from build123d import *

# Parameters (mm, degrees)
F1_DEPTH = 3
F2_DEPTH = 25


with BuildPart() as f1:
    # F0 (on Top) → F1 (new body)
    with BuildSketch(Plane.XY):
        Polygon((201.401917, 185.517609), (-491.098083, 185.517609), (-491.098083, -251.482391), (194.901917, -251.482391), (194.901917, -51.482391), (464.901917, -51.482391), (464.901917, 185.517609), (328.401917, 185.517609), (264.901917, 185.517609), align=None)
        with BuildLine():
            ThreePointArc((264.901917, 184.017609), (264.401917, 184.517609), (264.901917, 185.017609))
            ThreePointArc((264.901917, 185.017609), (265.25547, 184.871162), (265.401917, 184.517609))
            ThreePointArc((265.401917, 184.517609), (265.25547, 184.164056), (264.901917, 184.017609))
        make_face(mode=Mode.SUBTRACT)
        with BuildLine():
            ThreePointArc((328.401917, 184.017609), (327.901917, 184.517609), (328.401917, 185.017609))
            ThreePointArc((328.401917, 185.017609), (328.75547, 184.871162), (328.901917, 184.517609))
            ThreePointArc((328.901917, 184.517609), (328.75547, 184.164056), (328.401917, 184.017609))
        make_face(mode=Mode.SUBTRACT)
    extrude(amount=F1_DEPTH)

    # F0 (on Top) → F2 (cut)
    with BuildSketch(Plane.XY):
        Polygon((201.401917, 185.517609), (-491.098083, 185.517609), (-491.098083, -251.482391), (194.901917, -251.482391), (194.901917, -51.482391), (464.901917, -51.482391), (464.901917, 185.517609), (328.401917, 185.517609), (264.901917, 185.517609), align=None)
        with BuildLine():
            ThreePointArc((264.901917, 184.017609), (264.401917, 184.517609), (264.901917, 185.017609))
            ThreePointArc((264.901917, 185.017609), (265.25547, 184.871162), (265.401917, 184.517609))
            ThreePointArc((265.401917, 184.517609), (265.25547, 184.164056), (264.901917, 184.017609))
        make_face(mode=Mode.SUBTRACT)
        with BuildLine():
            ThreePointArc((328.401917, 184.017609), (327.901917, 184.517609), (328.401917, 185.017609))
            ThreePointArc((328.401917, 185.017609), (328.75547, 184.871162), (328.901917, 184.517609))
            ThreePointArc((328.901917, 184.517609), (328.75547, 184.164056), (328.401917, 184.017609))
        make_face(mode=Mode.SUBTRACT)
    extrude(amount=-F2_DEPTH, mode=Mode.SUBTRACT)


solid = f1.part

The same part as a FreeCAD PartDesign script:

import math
import FreeCAD as App
import Part
import Sketcher
Q = App.Units.Quantity


def add_polygon(sketch, points):
    """Adds a closed chain of lines whose ends are joined by coincident constraints."""
    first, n = sketch.GeometryCount, len(points)
    for a, b in zip(points, points[1:] + points[:1]):
        sketch.addGeometry(Part.LineSegment(App.Vector(*a, 0), App.Vector(*b, 0)), False)
    for i in range(n):
        sketch.addConstraint(Sketcher.Constraint("Coincident", first + i, 2, first + (i + 1) % n, 1))

doc = App.newDocument("Part")
params = doc.addObject("Spreadsheet::Sheet", "Params")
for row, (alias, value) in enumerate([
    ("sketch1_radius", "0.500001 mm"),
    ("sketch1_width", "686 mm"),
    ("sketch1_width2", "270 mm"),
    ("sketch1_height", "437 mm"),
    ("sketch1_height2", "200 mm"),
    ("pad1_length", "3 mm"),
    ("sketch2_radius", "0.500001 mm"),
    ("sketch2_width", "686 mm"),
    ("sketch2_width2", "270 mm"),
    ("sketch2_height", "437 mm"),
    ("sketch2_height2", "200 mm"),
    ("pocket1_length", "25 mm"),
], start=1):
    params.set(f"A{row}", alias)
    params.set(f"B{row}", "=" + value)
    params.setAlias(f"B{row}", alias)

body = doc.addObject("PartDesign::Body", "Body")

# Sketch on XY plane
sketch1 = body.newObject("Sketcher::SketchObject", "Sketch")
sketch1.AttachmentSupport = (doc.getObject("XY_Plane"), [""])
sketch1.MapMode = "FlatFace"
add_polygon(sketch1, [(-491.1, 185.5), (-491.1, -251.5), (194.9, -251.5), (194.9, -51.5), (464.9, -51.5), (464.9, 185.5)])  # lines 0-5
sketch1.addGeometry(Part.ArcOfCircle(Part.Circle(App.Vector(264.9, 184.5, 0), App.Vector(0, 0, 1), 0.5), math.radians(-90), math.radians(0)), False)  # 6
sketch1.addGeometry(Part.ArcOfCircle(Part.Circle(App.Vector(264.9, 184.5, 0), App.Vector(0, 0, 1), 0.5), math.radians(90), math.radians(270)), False)  # 7
sketch1.addGeometry(Part.ArcOfCircle(Part.Circle(App.Vector(264.9, 184.5, 0), App.Vector(0, 0, 1), 0.5), math.radians(0), math.radians(90)), False)  # 8
sketch1.addGeometry(Part.ArcOfCircle(Part.Circle(App.Vector(328.4, 184.5, 0), App.Vector(0, 0, 1), 0.5), math.radians(-90), math.radians(0)), False)  # 9
sketch1.addGeometry(Part.ArcOfCircle(Part.Circle(App.Vector(328.4, 184.5, 0), App.Vector(0, 0, 1), 0.5), math.radians(90), math.radians(270)), False)  # 10
sketch1.addGeometry(Part.ArcOfCircle(Part.Circle(App.Vector(328.4, 184.5, 0), App.Vector(0, 0, 1), 0.5), math.radians(0), math.radians(90)), False)  # 11
sketch1.addConstraint(Sketcher.Constraint("Coincident", 6, 1, 7, 2))
sketch1.addConstraint(Sketcher.Constraint("Coincident", 7, 1, 8, 2))
sketch1.addConstraint(Sketcher.Constraint("Coincident", 8, 1, 6, 2))
sketch1.addConstraint(Sketcher.Constraint("Coincident", 9, 1, 10, 2))
sketch1.addConstraint(Sketcher.Constraint("Coincident", 10, 1, 11, 2))
sketch1.addConstraint(Sketcher.Constraint("Coincident", 11, 1, 9, 2))
sketch1.addConstraint(Sketcher.Constraint("Vertical", 0))
sketch1.addConstraint(Sketcher.Constraint("Horizontal", 1))
sketch1.addConstraint(Sketcher.Constraint("Vertical", 2))
sketch1.addConstraint(Sketcher.Constraint("Horizontal", 3))
sketch1.addConstraint(Sketcher.Constraint("Vertical", 4))
sketch1.addConstraint(Sketcher.Constraint("Horizontal", 5))
sketch1.addConstraint(Sketcher.Constraint("Coincident", 7, 3, 6, 3))
sketch1.addConstraint(Sketcher.Constraint("Coincident", 10, 3, 9, 3))
sketch1.addConstraint(Sketcher.Constraint("Equal", 7, 8))
sketch1.addConstraint(Sketcher.Constraint("Equal", 8, 9))
sketch1.addConstraint(Sketcher.Constraint("Equal", 10, 11))
sketch1.addConstraint(Sketcher.Constraint("Horizontal", 7, 3, 9, 3))
sketch1.addConstraint(Sketcher.Constraint("Horizontal", 11, 3, 8, 1))
sketch1.addConstraint(Sketcher.Constraint("Horizontal", 8, 1, 11, 1))
sketch1.addConstraint(Sketcher.Constraint("Vertical", 8, 3, 6, 1))
sketch1.addConstraint(Sketcher.Constraint("Vertical", 6, 1, 7, 1))
sketch1.addConstraint(Sketcher.Constraint("Vertical", 11, 3, 9, 1))
sketch1.addConstraint(Sketcher.Constraint("Vertical", 9, 1, 10, 1))
sketch1.addConstraint(Sketcher.Constraint("Radius", 6, Q("0.500001 mm")))
sketch1.addConstraint(Sketcher.Constraint("DistanceX", 1, 1, 1, 2, Q("686 mm")))
sketch1.addConstraint(Sketcher.Constraint("DistanceX", 3, 1, 3, 2, Q("270 mm")))
sketch1.addConstraint(Sketcher.Constraint("DistanceY", 0, 2, 0, 1, Q("437 mm")))
sketch1.addConstraint(Sketcher.Constraint("DistanceY", 2, 1, 2, 2, Q("200 mm")))
sketch1.addConstraint(Sketcher.Constraint("DistanceX", 0, 2, 8, 3, Q("755.999999 mm")))
sketch1.addConstraint(Sketcher.Constraint("DistanceY", 0, 2, 8, 3, Q("435.999999 mm")))
sketch1.addConstraint(Sketcher.Constraint("DistanceX", 8, 1, 9, 1, Q("63 mm")))
sketch1.addConstraint(Sketcher.Constraint("DistanceY", -1, 1, 6, 3, Q("184.51761 mm")))
sketch1.addConstraint(Sketcher.Constraint("DistanceX", -1, 1, 6, 3, Q("264.901916 mm")))
sketch1.setExpression("Constraints[30]", "Params.sketch1_radius")
sketch1.setExpression("Constraints[31]", "Params.sketch1_width")
sketch1.setExpression("Constraints[32]", "Params.sketch1_width2")
sketch1.setExpression("Constraints[33]", "Params.sketch1_height")
sketch1.setExpression("Constraints[34]", "Params.sketch1_height2")
pad1 = body.newObject("PartDesign::Pad", "Pad")
pad1.Profile = sketch1
pad1.setExpression("Length", "Params.pad1_length")

# Sketch on XY plane
sketch2 = body.newObject("Sketcher::SketchObject", "Sketch001")
sketch2.AttachmentSupport = (doc.getObject("XY_Plane"), [""])
sketch2.MapMode = "FlatFace"
add_polygon(sketch2, [(-491.1, 185.5), (-491.1, -251.5), (194.9, -251.5), (194.9, -51.5), (464.9, -51.5), (464.9, 185.5)])  # lines 0-5
sketch2.addGeometry(Part.ArcOfCircle(Part.Circle(App.Vector(264.9, 184.5, 0), App.Vector(0, 0, 1), 0.5), math.radians(-90), math.radians(0)), False)  # 6
sketch2.addGeometry(Part.ArcOfCircle(Part.Circle(App.Vector(264.9, 184.5, 0), App.Vector(0, 0, 1), 0.5), math.radians(90), math.radians(270)), False)  # 7
sketch2.addGeometry(Part.ArcOfCircle(Part.Circle(App.Vector(264.9, 184.5, 0), App.Vector(0, 0, 1), 0.5), math.radians(0), math.radians(90)), False)  # 8
sketch2.addGeometry(Part.ArcOfCircle(Part.Circle(App.Vector(328.4, 184.5, 0), App.Vector(0, 0, 1), 0.5), math.radians(-90), math.radians(0)), False)  # 9
sketch2.addGeometry(Part.ArcOfCircle(Part.Circle(App.Vector(328.4, 184.5, 0), App.Vector(0, 0, 1), 0.5), math.radians(90), math.radians(270)), False)  # 10
sketch2.addGeometry(Part.ArcOfCircle(Part.Circle(App.Vector(328.4, 184.5, 0), App.Vector(0, 0, 1), 0.5), math.radians(0), math.radians(90)), False)  # 11
sketch2.addConstraint(Sketcher.Constraint("Coincident", 6, 1, 7, 2))
sketch2.addConstraint(Sketcher.Constraint("Coincident", 7, 1, 8, 2))
sketch2.addConstraint(Sketcher.Constraint("Coincident", 8, 1, 6, 2))
sketch2.addConstraint(Sketcher.Constraint("Coincident", 9, 1, 10, 2))
sketch2.addConstraint(Sketcher.Constraint("Coincident", 10, 1, 11, 2))
sketch2.addConstraint(Sketcher.Constraint("Coincident", 11, 1, 9, 2))
sketch2.addConstraint(Sketcher.Constraint("Vertical", 0))
sketch2.addConstraint(Sketcher.Constraint("Horizontal", 1))
sketch2.addConstraint(Sketcher.Constraint("Vertical", 2))
sketch2.addConstraint(Sketcher.Constraint("Horizontal", 3))
sketch2.addConstraint(Sketcher.Constraint("Vertical", 4))
sketch2.addConstraint(Sketcher.Constraint("Horizontal", 5))
sketch2.addConstraint(Sketcher.Constraint("Coincident", 7, 3, 6, 3))
sketch2.addConstraint(Sketcher.Constraint("Coincident", 10, 3, 9, 3))
sketch2.addConstraint(Sketcher.Constraint("Equal", 7, 8))
sketch2.addConstraint(Sketcher.Constraint("Equal", 8, 9))
sketch2.addConstraint(Sketcher.Constraint("Equal", 10, 11))
sketch2.addConstraint(Sketcher.Constraint("Horizontal", 7, 3, 9, 3))
sketch2.addConstraint(Sketcher.Constraint("Horizontal", 11, 3, 8, 1))
sketch2.addConstraint(Sketcher.Constraint("Horizontal", 8, 1, 11, 1))
sketch2.addConstraint(Sketcher.Constraint("Vertical", 8, 3, 6, 1))
sketch2.addConstraint(Sketcher.Constraint("Vertical", 6, 1, 7, 1))
sketch2.addConstraint(Sketcher.Constraint("Vertical", 11, 3, 9, 1))
sketch2.addConstraint(Sketcher.Constraint("Vertical", 9, 1, 10, 1))
sketch2.addConstraint(Sketcher.Constraint("Radius", 6, Q("0.500001 mm")))
sketch2.addConstraint(Sketcher.Constraint("DistanceX", 1, 1, 1, 2, Q("686 mm")))
sketch2.addConstraint(Sketcher.Constraint("DistanceX", 3, 1, 3, 2, Q("270 mm")))
sketch2.addConstraint(Sketcher.Constraint("DistanceY", 0, 2, 0, 1, Q("437 mm")))
sketch2.addConstraint(Sketcher.Constraint("DistanceY", 2, 1, 2, 2, Q("200 mm")))
sketch2.addConstraint(Sketcher.Constraint("DistanceX", 0, 2, 8, 3, Q("755.999999 mm")))
sketch2.addConstraint(Sketcher.Constraint("DistanceY", 0, 2, 8, 3, Q("435.999999 mm")))
sketch2.addConstraint(Sketcher.Constraint("DistanceX", 8, 1, 9, 1, Q("63 mm")))
sketch2.addConstraint(Sketcher.Constraint("DistanceY", -1, 1, 6, 3, Q("184.51761 mm")))
sketch2.addConstraint(Sketcher.Constraint("DistanceX", -1, 1, 6, 3, Q("264.901916 mm")))
sketch2.setExpression("Constraints[30]", "Params.sketch2_radius")
sketch2.setExpression("Constraints[31]", "Params.sketch2_width")
sketch2.setExpression("Constraints[32]", "Params.sketch2_width2")
sketch2.setExpression("Constraints[33]", "Params.sketch2_height")
sketch2.setExpression("Constraints[34]", "Params.sketch2_height2")
pocket1 = body.newObject("PartDesign::Pocket", "Pocket")
pocket1.Profile = sketch2
pocket1.setExpression("Length", "Params.pocket1_length")

doc.recompute()
